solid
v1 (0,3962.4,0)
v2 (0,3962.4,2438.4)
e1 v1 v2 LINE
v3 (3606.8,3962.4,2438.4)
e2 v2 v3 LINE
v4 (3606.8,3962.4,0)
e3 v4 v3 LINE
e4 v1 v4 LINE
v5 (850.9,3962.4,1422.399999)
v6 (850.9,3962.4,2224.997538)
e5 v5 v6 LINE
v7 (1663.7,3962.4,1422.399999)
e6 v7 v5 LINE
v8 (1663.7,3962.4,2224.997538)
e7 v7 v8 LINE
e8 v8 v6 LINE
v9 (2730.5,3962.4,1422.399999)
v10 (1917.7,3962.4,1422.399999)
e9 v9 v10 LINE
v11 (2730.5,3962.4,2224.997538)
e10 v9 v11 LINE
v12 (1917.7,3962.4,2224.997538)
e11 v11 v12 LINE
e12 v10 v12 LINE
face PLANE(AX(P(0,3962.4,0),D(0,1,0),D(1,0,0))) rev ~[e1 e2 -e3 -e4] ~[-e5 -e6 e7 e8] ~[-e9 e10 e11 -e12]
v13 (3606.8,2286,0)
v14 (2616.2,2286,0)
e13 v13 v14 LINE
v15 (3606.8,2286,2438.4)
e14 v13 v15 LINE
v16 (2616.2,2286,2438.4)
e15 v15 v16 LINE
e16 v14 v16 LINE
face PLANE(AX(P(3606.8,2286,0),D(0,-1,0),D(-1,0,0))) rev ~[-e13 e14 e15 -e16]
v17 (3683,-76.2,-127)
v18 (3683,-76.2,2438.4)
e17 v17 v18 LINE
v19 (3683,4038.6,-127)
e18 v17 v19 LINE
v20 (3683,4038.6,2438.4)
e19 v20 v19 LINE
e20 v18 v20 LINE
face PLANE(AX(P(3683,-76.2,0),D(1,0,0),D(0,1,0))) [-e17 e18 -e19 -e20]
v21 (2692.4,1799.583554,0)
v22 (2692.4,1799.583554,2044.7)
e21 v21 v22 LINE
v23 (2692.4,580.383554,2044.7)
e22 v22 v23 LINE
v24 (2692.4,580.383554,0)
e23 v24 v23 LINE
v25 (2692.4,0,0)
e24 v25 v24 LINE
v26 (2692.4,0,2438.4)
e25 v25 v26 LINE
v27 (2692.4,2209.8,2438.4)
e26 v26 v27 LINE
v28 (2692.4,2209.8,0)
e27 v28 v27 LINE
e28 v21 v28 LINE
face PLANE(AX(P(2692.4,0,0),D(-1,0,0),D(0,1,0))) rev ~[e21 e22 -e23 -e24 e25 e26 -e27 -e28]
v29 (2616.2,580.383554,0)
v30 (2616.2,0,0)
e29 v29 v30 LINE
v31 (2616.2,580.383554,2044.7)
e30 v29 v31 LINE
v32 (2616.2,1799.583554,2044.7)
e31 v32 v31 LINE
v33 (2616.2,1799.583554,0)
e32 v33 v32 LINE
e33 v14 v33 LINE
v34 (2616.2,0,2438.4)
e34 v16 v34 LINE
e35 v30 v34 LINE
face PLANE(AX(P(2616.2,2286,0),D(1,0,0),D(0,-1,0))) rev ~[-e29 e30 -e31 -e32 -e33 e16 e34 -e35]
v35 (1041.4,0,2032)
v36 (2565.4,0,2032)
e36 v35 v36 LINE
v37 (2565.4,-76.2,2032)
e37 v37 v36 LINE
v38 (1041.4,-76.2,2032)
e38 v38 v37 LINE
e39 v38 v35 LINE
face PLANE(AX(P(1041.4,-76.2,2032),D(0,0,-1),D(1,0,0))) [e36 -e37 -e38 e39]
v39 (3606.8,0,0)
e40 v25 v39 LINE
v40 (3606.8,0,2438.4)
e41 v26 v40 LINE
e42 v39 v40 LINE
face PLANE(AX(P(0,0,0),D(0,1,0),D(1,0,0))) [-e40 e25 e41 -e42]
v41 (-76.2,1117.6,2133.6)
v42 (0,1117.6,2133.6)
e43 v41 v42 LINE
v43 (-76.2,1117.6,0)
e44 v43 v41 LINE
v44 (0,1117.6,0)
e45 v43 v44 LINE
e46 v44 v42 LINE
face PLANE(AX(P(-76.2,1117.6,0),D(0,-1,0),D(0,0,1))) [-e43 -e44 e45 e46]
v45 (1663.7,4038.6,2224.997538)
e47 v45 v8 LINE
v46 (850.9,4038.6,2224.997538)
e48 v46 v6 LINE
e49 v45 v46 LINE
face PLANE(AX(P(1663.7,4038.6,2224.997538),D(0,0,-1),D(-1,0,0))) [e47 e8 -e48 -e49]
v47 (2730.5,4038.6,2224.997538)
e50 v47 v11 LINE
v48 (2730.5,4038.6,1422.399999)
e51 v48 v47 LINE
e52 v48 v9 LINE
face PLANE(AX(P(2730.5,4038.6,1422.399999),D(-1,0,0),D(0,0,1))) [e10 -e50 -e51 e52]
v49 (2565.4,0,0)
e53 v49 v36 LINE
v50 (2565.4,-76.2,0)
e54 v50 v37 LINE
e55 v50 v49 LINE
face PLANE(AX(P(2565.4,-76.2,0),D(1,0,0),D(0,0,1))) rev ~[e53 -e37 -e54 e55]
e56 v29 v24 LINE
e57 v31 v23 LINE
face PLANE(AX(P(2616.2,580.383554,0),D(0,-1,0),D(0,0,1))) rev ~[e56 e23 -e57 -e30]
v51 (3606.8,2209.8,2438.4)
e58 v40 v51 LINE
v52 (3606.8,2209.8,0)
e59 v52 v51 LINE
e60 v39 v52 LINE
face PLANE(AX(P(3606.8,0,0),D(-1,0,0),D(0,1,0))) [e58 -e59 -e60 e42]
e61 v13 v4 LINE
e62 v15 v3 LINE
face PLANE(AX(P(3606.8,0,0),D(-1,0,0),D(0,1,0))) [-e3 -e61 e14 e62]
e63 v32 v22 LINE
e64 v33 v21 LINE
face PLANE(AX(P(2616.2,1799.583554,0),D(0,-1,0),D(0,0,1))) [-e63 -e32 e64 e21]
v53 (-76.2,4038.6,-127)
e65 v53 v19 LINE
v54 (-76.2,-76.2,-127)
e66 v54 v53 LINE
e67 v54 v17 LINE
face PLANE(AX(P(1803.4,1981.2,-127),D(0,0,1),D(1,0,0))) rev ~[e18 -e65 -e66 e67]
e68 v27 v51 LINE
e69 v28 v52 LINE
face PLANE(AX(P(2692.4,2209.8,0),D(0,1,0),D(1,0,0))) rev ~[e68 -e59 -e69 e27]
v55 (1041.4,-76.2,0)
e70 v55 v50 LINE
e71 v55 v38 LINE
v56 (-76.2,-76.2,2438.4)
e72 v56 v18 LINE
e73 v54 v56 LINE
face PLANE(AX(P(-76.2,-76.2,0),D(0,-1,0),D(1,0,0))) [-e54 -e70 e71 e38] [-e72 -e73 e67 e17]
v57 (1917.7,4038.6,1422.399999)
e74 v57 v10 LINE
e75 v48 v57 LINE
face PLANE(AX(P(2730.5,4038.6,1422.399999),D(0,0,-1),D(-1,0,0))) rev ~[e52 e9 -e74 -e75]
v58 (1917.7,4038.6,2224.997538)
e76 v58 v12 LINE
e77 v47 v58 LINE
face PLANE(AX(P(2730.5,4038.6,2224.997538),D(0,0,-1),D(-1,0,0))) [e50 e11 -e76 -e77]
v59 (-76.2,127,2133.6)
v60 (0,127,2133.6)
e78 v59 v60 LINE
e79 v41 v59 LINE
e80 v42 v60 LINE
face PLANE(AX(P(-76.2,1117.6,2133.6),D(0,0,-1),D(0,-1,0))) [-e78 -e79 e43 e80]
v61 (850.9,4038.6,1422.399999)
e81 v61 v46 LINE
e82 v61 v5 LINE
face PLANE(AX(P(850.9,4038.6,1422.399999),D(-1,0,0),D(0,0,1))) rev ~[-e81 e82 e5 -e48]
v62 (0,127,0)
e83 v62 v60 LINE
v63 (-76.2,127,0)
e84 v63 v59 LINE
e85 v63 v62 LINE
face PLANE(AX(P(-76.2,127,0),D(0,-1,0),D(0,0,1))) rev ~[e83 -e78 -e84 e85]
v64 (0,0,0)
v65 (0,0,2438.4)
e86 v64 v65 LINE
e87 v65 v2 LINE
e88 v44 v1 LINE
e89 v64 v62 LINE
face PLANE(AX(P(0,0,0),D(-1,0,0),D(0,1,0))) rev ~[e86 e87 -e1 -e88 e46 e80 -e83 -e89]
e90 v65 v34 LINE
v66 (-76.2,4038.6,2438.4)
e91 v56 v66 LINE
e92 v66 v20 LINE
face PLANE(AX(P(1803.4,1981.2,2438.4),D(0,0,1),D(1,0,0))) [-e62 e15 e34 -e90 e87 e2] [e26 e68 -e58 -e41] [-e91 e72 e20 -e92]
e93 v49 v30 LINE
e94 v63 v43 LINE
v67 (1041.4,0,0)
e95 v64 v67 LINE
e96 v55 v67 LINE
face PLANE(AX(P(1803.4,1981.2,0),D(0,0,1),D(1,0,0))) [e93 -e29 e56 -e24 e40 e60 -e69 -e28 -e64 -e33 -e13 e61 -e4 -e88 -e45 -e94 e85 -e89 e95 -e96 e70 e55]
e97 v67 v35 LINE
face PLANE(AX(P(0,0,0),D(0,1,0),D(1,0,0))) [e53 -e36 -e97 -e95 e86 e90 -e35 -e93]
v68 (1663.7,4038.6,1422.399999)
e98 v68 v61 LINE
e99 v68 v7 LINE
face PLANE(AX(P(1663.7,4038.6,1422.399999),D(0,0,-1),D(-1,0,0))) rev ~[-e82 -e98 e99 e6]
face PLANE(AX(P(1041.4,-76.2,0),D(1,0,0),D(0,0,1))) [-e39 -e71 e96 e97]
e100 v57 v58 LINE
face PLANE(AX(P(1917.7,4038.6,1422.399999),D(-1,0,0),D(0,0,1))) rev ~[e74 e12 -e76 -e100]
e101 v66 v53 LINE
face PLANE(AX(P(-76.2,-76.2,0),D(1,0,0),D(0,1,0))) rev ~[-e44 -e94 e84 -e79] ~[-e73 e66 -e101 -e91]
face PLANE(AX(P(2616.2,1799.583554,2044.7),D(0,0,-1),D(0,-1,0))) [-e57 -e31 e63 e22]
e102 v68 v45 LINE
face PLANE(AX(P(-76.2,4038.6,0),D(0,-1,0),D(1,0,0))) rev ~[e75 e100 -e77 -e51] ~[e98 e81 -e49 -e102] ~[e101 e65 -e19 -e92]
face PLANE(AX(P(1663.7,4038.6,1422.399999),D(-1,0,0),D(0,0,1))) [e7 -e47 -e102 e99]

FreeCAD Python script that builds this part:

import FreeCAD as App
import Part
import Sketcher
from FreeCAD import Vector
Q = App.Units.Quantity


def add_polygon(sketch, points):
    """Adds a closed chain of lines whose ends are joined by coincident constraints."""
    first, n = sketch.GeometryCount, len(points)
    for a, b in zip(points, points[1:] + points[:1]):
        sketch.addGeometry(Part.LineSegment(App.Vector(*a, 0), App.Vector(*b, 0)), False)
    for i in range(n):
        sketch.addConstraint(Sketcher.Constraint("Coincident", first + i, 2, first + (i + 1) % n, 1))

doc = App.newDocument("Part")
params = doc.addObject("Spreadsheet::Sheet", "Params")
for row, (alias, value) in enumerate([
    ("sketch1_width", "148 in"),
    ("sketch1_width2", "142 in"),
    ("sketch1_height", "162 in"),
    ("sketch1_height2", "156 in"),
    ("pad1_length", "96 in"),
    ("sketch2_width", "39 in"),
    ("sketch2_height", "84 in"),
    ("pocket1_length", "3 in"),
    ("sketch3_width", "32 in"),
    ("pocket2_length", "3 in"),
    ("sketch4_width", "60 in"),
    ("sketch4_height", "80 in"),
    ("pocket3_length", "3 in"),
    ("sketch5_width", "148 in"),
    ("sketch5_height", "162 in"),
    ("pad2_length", "5 in"),
    ("sketch6_width", "3 in"),
    ("sketch6_width2", "36 in"),
    ("sketch6_height", "87 in"),
    ("pad3_length", "96 in"),
    ("sketch7_width", "48 in"),
    ("sketch7_height", "80.5 in"),
    ("pocket4_length", "3 in"),
], start=1):
    params.set(f"A{row}", alias)
    params.set(f"B{row}", "=" + value)
    params.setAlias(f"B{row}", alias)

body = doc.addObject("PartDesign::Body", "Body")

sketch1 = body.newObject("Sketcher::SketchObject", "Sketch")
sketch1.AttachmentSupport = (doc.getObject("XY_Plane"), [""])
sketch1.MapMode = "FlatFace"
add_polygon(sketch1, [(-76, 4039), (-76, -76), (3683, -76), (3683, 4039)])
add_polygon(sketch1, [(3607, 0), (0, 0), (0, 3962), (3607, 3962)])
sketch1.addConstraint([
    Sketcher.Constraint("Vertical", 0),
    Sketcher.Constraint("Horizontal", 1),
    Sketcher.Constraint("Vertical", 2),
    Sketcher.Constraint("Horizontal", 3),
    Sketcher.Constraint("Horizontal", 4),
    Sketcher.Constraint("Vertical", 5),
    Sketcher.Constraint("Horizontal", 6),
    Sketcher.Constraint("Vertical", 7),
    Sketcher.Constraint("Coincident", 4, 2, -1, 1),
    Sketcher.Constraint("DistanceX", 1, 1, 1, 2, Q("148 in")),
    Sketcher.Constraint("DistanceX", 4, 2, 4, 1, Q("142 in")),
    Sketcher.Constraint("DistanceY", 0, 2, 0, 1, Q("162 in")),
    Sketcher.Constraint("DistanceY", 5, 1, 5, 2, Q("156 in")),
    Sketcher.Constraint("DistanceX", 0, 2, -1, 1, Q("3 in")),
    Sketcher.Constraint("DistanceY", 0, 2, -1, 1, Q("3 in")),
])
sketch1.setExpression("Constraints[17]", "Params.sketch1_width")
sketch1.setExpression("Constraints[18]", "Params.sketch1_width2")
sketch1.setExpression("Constraints[19]", "Params.sketch1_height")
sketch1.setExpression("Constraints[20]", "Params.sketch1_height2")
pad1 = body.newObject("PartDesign::Pad", "Pad")
pad1.Profile = sketch1
pad1.setExpression("Length", "Params.pad1_length")

sketch2 = body.newObject("Sketcher::SketchObject", "Sketch001")
sketch2.AttachmentSupport = (doc.getObject("YZ_Plane"), [""])
sketch2.MapMode = "FlatFace"
sketch2.AttachmentOffset = App.Placement(Vector(0, 0, -3 * 25.4), App.Rotation())
add_polygon(sketch2, [(1118, 2134), (1118, 0), (127, 0), (127, 2134)])
sketch2.addConstraint([
    Sketcher.Constraint("Vertical", 0),
    Sketcher.Constraint("Horizontal", 1),
    Sketcher.Constraint("Vertical", 2),
    Sketcher.Constraint("Horizontal", 3),
    Sketcher.Constraint("PointOnObject", 0, 2, -1),
    Sketcher.Constraint("DistanceX", 1, 2, 1, 1, Q("39 in")),
    Sketcher.Constraint("DistanceY", 0, 2, 0, 1, Q("84 in")),
    Sketcher.Constraint("DistanceX", -1, 1, 0, 2, Q("44 in")),
])
sketch2.setExpression("Constraints[9]", "Params.sketch2_width")
sketch2.setExpression("Constraints[10]", "Params.sketch2_height")
pocket1 = body.newObject("PartDesign::Pocket", "Pocket")
pocket1.Profile = sketch2
pocket1.setExpression("Length", "Params.pocket1_length")
pocket1.Reversed = True

sketch3 = body.newObject("Sketcher::SketchObject", "Sketch002")
sketch3.AttachmentSupport = (doc.getObject("XZ_Plane"), [""])
sketch3.MapMode = "FlatFace"
sketch3.AttachmentOffset = App.Placement(Vector(0, 0, -159 * 25.4), App.Rotation())
add_polygon(sketch3, [(1664, 2225), (1664, 1422), (851, 1422), (851, 2225)])
add_polygon(sketch3, [(2730, 2225), (2730, 1422), (1918, 1422), (1918, 2225)])
sketch3.addConstraint([
    Sketcher.Constraint("Vertical", 0),
    Sketcher.Constraint("Horizontal", 1),
    Sketcher.Constraint("Vertical", 2),
    Sketcher.Constraint("Horizontal", 3),
    Sketcher.Constraint("Vertical", 4),
    Sketcher.Constraint("Horizontal", 5),
    Sketcher.Constraint("Vertical", 6),
    Sketcher.Constraint("Horizontal", 7),
    Sketcher.Constraint("Horizontal", 1, 2, 4, 2),
    Sketcher.Constraint("Horizontal", 3, 2, 6, 2),
    Sketcher.Constraint("Equal", 3, 5),
    Sketcher.Constraint("DistanceX", 1, 2, 1, 1, Q("32 in")),
    Sketcher.Constraint("DistanceY", -1, 1, 0, 2, Q("56 in")),
    Sketcher.Constraint("DistanceX", 0, 2, 4, 2, Q("42 in")),
    Sketcher.Constraint("DistanceX", -1, 1, 0, 2, Q("65.5 in")),
    Sketcher.Constraint("DistanceY", 0, 2, 0, 1, Q("802.597539 mm")),
])
sketch3.setExpression("Constraints[19]", "Params.sketch3_width")
pocket2 = body.newObject("PartDesign::Pocket", "Pocket001")
pocket2.Profile = sketch3
pocket2.setExpression("Length", "Params.pocket2_length")
pocket2.Reversed = True

sketch4 = body.newObject("Sketcher::SketchObject", "Sketch003")
sketch4.AttachmentSupport = (doc.getObject("XZ_Plane"), [""])
sketch4.MapMode = "FlatFace"
sketch4.AttachmentOffset = App.Placement(Vector(0, 0, 3 * 25.4), App.Rotation())
add_polygon(sketch4, [(1041, 2032), (1041, 0), (2565, 0), (2565, 2032)])
sketch4.addConstraint([
    Sketcher.Constraint("Vertical", 0),
    Sketcher.Constraint("Horizontal", 1),
    Sketcher.Constraint("Vertical", 2),
    Sketcher.Constraint("Horizontal", 3),
    Sketcher.Constraint("PointOnObject", 0, 2, -1),
    Sketcher.Constraint("DistanceX", 1, 1, 1, 2, Q("60 in")),
    Sketcher.Constraint("DistanceY", 0, 2, 0, 1, Q("80 in")),
    Sketcher.Constraint("DistanceX", -1, 1, 0, 2, Q("41 in")),
])
sketch4.setExpression("Constraints[9]", "Params.sketch4_width")
sketch4.setExpression("Constraints[10]", "Params.sketch4_height")
pocket3 = body.newObject("PartDesign::Pocket", "Pocket002")
pocket3.Profile = sketch4
pocket3.setExpression("Length", "Params.pocket3_length")

sketch5 = body.newObject("Sketcher::SketchObject", "Sketch004")
sketch5.AttachmentSupport = (doc.getObject("XY_Plane"), [""])
sketch5.MapMode = "FlatFace"
add_polygon(sketch5, [(-76, 4039), (-76, -76), (3683, -76), (3683, 4039)])
sketch5.addConstraint([
    Sketcher.Constraint("Vertical", 0),
    Sketcher.Constraint("Horizontal", 1),
    Sketcher.Constraint("Vertical", 2),
    Sketcher.Constraint("Horizontal", 3),
    Sketcher.Constraint("DistanceX", 1, 1, 1, 2, Q("148 in")),
    Sketcher.Constraint("DistanceY", 0, 2, 0, 1, Q("162 in")),
    Sketcher.Constraint("DistanceX", 0, 2, -1, 1, Q("3 in")),
    Sketcher.Constraint("DistanceY", 0, 2, -1, 1, Q("3 in")),
])
sketch5.setExpression("Constraints[8]", "Params.sketch5_width")
sketch5.setExpression("Constraints[9]", "Params.sketch5_height")
pad2 = body.newObject("PartDesign::Pad", "Pad001")
pad2.Profile = sketch5
pad2.setExpression("Length", "Params.pad2_length")
pad2.Reversed = True

sketch6 = body.newObject("Sketcher::SketchObject", "Sketch005")
sketch6.AttachmentSupport = (doc.getObject("XY_Plane"), [""])
sketch6.MapMode = "FlatFace"
add_polygon(sketch6, [(2616, 0), (2692, 0), (2692, 2210), (3607, 2210), (3607, 2286), (2616, 2286)])
sketch6.addConstraint([
    Sketcher.Constraint("Horizontal", 0),
    Sketcher.Constraint("Vertical", 1),
    Sketcher.Constraint("Horizontal", 2),
    Sketcher.Constraint("Vertical", 3),
    Sketcher.Constraint("Horizontal", 4),
    Sketcher.Constraint("Vertical", 5),
    Sketcher.Constraint("PointOnObject", 0, 2, -1),
    Sketcher.Constraint("Equal", 0, 3),
    Sketcher.Constraint("DistanceX", 0, 1, 0, 2, Q("3 in")),
    Sketcher.Constraint("DistanceX", 2, 1, 2, 2, Q("36 in")),
    Sketcher.Constraint("DistanceY", 1, 1, 1, 2, Q("87 in")),
    Sketcher.Constraint("DistanceX", -1, 1, 0, 2, Q("106 in")),
])
sketch6.setExpression("Constraints[14]", "Params.sketch6_width")
sketch6.setExpression("Constraints[15]", "Params.sketch6_width2")
sketch6.setExpression("Constraints[16]", "Params.sketch6_height")
pad3 = body.newObject("PartDesign::Pad", "Pad002")
pad3.Profile = sketch6
pad3.setExpression("Length", "Params.pad3_length")

sketch7 = body.newObject("Sketcher::SketchObject", "Sketch006")
sketch7.AttachmentSupport = (doc.getObject("YZ_Plane"), [""])
sketch7.MapMode = "FlatFace"
sketch7.AttachmentOffset = App.Placement(Vector(0, 0, 103 * 25.4), App.Rotation())
add_polygon(sketch7, [(1800, 2045), (1800, 0), (580, 0), (580, 2045)])
sketch7.addConstraint([
    Sketcher.Constraint("Vertical", 0),
    Sketcher.Constraint("Horizontal", 1),
    Sketcher.Constraint("Vertical", 2),
    Sketcher.Constraint("Horizontal", 3),
    Sketcher.Constraint("PointOnObject", 0, 2, -1),
    Sketcher.Constraint("DistanceX", 1, 2, 1, 1, Q("48 in")),
    Sketcher.Constraint("DistanceY", 0, 2, 0, 1, Q("80.5 in")),
    Sketcher.Constraint("DistanceX", -1, 1, 0, 2, Q("1799.583554 mm")),
])
sketch7.setExpression("Constraints[9]", "Params.sketch7_width")
sketch7.setExpression("Constraints[10]", "Params.sketch7_height")
pocket4 = body.newObject("PartDesign::Pocket", "Pocket003")
pocket4.Profile = sketch7
pocket4.setExpression("Length", "Params.pocket4_length")
pocket4.Reversed = True

doc.recompute()
